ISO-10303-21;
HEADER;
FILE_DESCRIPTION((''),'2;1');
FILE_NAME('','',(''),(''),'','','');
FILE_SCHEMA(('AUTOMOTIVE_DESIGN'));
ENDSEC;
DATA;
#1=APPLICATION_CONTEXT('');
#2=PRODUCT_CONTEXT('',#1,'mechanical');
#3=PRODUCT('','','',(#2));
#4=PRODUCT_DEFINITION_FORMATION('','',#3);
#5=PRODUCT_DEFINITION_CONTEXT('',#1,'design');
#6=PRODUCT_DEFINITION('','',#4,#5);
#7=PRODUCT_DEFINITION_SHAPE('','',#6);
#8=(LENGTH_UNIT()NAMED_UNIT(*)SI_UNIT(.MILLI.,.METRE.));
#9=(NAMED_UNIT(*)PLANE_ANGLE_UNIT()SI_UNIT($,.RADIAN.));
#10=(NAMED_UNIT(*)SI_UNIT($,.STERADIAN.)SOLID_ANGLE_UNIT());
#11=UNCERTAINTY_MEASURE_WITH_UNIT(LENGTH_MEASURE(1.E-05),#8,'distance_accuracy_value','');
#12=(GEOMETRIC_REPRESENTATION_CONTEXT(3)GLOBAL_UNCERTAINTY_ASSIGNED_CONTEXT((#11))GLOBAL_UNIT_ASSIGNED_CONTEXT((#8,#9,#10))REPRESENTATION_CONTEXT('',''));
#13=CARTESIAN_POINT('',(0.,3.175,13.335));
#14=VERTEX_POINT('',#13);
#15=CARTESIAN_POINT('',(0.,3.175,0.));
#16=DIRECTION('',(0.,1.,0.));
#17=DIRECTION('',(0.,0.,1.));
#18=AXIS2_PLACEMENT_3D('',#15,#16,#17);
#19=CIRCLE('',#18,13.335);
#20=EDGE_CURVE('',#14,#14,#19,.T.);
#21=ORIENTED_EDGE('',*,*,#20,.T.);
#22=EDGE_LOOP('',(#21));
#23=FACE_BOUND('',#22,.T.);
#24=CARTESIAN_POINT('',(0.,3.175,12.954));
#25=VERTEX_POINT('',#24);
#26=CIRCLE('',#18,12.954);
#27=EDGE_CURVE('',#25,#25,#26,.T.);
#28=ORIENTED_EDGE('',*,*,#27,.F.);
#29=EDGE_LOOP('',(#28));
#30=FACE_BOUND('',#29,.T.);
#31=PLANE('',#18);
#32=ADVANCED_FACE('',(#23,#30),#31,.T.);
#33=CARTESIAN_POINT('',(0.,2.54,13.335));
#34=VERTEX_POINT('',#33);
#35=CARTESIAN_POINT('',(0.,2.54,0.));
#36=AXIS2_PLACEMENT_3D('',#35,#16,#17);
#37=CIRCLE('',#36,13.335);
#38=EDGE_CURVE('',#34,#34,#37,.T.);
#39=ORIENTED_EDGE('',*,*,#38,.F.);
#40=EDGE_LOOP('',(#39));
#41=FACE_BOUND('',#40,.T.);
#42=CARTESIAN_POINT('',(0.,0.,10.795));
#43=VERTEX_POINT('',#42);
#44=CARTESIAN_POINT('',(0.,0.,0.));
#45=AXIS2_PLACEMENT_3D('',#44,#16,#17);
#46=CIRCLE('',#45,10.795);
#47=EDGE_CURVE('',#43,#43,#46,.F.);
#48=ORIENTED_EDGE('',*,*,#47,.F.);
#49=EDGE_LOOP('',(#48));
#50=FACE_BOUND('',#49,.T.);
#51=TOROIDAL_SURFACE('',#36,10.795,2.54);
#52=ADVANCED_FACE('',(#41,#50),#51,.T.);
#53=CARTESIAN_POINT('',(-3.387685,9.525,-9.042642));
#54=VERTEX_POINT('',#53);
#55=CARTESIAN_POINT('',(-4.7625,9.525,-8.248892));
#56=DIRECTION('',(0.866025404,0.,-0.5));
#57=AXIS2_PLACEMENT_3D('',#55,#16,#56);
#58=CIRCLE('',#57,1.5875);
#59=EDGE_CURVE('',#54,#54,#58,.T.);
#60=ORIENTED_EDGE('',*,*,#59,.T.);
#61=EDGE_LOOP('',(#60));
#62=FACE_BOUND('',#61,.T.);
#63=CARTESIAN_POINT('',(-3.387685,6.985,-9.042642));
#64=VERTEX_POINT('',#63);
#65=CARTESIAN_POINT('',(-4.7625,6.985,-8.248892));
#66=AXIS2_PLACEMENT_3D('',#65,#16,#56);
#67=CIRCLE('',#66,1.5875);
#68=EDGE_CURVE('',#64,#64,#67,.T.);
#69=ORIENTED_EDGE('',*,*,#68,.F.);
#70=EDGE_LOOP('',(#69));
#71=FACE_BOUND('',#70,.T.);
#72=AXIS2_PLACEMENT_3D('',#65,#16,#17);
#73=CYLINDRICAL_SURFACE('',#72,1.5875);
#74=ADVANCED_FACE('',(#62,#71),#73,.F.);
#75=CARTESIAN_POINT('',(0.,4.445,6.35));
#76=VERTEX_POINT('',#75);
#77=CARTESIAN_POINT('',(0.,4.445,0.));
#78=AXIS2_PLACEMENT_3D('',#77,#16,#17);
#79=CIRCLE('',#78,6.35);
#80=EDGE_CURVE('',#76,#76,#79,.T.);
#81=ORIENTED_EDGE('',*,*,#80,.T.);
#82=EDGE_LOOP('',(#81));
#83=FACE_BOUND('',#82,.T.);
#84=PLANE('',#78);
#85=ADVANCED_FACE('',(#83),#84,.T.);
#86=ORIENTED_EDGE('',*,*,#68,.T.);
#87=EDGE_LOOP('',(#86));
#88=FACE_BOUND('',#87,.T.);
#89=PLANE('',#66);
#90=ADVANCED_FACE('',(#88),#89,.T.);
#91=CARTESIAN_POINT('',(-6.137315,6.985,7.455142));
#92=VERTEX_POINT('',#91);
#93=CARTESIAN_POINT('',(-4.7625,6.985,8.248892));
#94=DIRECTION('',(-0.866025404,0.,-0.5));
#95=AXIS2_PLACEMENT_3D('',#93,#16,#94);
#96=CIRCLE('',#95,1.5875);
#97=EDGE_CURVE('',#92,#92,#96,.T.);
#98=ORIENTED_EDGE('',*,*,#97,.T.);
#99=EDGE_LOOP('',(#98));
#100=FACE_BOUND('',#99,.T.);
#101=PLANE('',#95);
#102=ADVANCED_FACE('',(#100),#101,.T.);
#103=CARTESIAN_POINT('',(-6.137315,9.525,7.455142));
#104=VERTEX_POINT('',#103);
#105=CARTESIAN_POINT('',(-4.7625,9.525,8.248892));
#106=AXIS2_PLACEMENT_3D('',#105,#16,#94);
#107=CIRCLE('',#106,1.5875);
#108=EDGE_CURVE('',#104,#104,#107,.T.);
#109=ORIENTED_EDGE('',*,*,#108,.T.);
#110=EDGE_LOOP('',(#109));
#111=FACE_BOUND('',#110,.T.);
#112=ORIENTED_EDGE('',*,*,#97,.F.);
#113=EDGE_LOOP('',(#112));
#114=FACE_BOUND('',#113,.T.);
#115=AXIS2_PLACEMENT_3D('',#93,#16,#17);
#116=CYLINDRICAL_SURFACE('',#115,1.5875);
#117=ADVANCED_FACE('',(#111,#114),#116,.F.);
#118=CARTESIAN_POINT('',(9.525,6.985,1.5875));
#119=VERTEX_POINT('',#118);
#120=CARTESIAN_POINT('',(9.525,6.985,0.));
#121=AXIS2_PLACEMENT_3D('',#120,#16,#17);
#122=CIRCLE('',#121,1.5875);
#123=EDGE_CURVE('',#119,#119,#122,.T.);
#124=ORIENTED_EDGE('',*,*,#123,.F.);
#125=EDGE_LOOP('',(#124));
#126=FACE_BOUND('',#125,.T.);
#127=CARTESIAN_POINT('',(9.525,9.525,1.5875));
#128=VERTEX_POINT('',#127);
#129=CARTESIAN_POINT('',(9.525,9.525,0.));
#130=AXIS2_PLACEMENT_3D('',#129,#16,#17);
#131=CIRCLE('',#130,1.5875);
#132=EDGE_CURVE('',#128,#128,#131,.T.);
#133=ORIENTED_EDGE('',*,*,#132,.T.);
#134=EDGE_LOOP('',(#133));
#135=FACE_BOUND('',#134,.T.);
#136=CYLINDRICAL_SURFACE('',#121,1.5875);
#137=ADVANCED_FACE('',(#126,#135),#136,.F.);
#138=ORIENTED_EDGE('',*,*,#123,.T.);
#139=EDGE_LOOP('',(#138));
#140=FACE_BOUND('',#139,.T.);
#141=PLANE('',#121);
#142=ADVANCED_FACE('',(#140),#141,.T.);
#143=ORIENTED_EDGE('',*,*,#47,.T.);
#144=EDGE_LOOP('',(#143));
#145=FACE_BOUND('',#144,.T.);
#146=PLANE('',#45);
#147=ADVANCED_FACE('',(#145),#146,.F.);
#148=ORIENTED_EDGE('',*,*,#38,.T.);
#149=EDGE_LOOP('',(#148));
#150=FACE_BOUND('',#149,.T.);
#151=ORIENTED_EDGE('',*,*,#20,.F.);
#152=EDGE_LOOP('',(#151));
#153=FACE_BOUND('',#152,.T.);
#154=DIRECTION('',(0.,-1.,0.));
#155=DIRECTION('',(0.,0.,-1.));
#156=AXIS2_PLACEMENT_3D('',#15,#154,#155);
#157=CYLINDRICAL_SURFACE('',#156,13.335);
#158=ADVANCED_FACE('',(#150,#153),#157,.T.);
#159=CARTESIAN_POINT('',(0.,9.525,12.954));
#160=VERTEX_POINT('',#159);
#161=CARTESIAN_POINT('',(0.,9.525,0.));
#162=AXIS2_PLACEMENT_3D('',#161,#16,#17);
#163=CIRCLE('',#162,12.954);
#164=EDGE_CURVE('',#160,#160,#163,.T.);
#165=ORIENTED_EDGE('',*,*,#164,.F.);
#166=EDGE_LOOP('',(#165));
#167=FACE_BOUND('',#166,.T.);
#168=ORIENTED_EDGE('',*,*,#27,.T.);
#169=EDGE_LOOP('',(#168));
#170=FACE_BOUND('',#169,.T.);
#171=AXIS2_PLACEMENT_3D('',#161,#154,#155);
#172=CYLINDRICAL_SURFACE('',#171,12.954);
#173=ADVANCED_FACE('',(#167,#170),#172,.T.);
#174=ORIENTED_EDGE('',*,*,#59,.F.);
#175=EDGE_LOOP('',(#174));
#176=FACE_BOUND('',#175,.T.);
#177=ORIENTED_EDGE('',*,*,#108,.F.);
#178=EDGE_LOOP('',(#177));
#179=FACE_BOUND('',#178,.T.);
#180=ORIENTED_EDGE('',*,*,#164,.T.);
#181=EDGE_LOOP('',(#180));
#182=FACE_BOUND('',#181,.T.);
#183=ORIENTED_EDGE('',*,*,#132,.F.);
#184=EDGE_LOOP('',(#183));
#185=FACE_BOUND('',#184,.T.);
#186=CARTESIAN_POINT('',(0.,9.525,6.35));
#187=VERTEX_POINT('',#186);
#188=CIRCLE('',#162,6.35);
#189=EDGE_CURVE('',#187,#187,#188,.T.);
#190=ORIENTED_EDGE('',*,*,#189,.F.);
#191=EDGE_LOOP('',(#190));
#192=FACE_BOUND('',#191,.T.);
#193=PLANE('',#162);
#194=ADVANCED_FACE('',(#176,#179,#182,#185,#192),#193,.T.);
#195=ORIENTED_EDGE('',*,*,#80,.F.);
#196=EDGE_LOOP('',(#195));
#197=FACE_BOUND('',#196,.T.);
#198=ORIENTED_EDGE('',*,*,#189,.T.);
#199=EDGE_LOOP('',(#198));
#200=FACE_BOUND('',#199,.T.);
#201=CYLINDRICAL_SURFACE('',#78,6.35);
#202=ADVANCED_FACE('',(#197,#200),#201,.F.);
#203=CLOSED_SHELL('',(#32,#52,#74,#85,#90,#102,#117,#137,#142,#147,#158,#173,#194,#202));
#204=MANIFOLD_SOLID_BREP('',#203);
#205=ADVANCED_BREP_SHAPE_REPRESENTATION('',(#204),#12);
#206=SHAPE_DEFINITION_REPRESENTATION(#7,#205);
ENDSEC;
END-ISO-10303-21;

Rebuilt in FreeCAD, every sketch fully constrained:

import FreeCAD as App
import Part
import Sketcher
from FreeCAD import Vector
Q = App.Units.Quantity


def edges_at(feature, points):
    """Names of the edges that pass closest to the given points."""
    edges = feature.Shape.Edges
    near = lambda p: min(range(len(edges)), key=lambda i: edges[i].distToShape(Part.Vertex(*p))[0])
    return sorted({f"Edge{near(p) + 1}" for p in points})

doc = App.newDocument("Part")
params = doc.addObject("Spreadsheet::Sheet", "Params")
for row, (alias, value) in enumerate([
    ("sketch1_diameter", "1.05 in"),
    ("pad1_length", "0.125 in"),
    ("sketch2_diameter", "1.02 in"),
    ("pad2_length", "0.25 in"),
    ("sketch3_diameter", "0.5 in"),
    ("pocket1_length", "0.2 in"),
    ("sketch4_diameter", "0.125 in"),
    ("pocket2_length", "0.1 in"),
    ("fillet_radius", "0.1 in"),
], start=1):
    params.set(f"A{row}", alias)
    params.set(f"B{row}", "=" + value)
    params.setAlias(f"B{row}", alias)

body = doc.addObject("PartDesign::Body", "Body")

# Sketch on XZ plane
sketch1 = body.newObject("Sketcher::SketchObject", "Sketch")
sketch1.AttachmentSupport = (doc.getObject("XZ_Plane"), [""])
sketch1.MapMode = "FlatFace"
sketch1.addGeometry(Part.Circle(Vector(0, 0, 0), Vector(0, 0, 1), 13), False)
sketch1.addConstraint([
    Sketcher.Constraint("Coincident", 0, 3, -1, 1),
    Sketcher.Constraint("Diameter", 0, Q("1.05 in")),
])
sketch1.setExpression("Constraints[1]", "Params.sketch1_diameter")
pad1 = body.newObject("PartDesign::Pad", "Pad")
pad1.Profile = sketch1
pad1.setExpression("Length", "Params.pad1_length")
pad1.Reversed = True

# Sketch on XZ plane
sketch2 = body.newObject("Sketcher::SketchObject", "Sketch001")
sketch2.AttachmentSupport = (doc.getObject("XZ_Plane"), [""])
sketch2.MapMode = "FlatFace"
sketch2.AttachmentOffset = App.Placement(Vector(0, 0, -0.125 * 25.4), App.Rotation())
sketch2.addGeometry(Part.Circle(Vector(0, 0, 0), Vector(0, 0, 1), 13), False)
sketch2.addConstraint([
    Sketcher.Constraint("Coincident", 0, 3, -1, 1),
    Sketcher.Constraint("Diameter", 0, Q("1.02 in")),
])
sketch2.setExpression("Constraints[1]", "Params.sketch2_diameter")
pad2 = body.newObject("PartDesign::Pad", "Pad001")
pad2.Profile = sketch2
pad2.setExpression("Length", "Params.pad2_length")
pad2.Reversed = True

# Sketch on XZ plane
sketch3 = body.newObject("Sketcher::SketchObject", "Sketch002")
sketch3.AttachmentSupport = (doc.getObject("XZ_Plane"), [""])
sketch3.MapMode = "FlatFace"
sketch3.AttachmentOffset = App.Placement(Vector(0, 0, -0.375 * 25.4), App.Rotation())
sketch3.addGeometry(Part.Circle(Vector(0, 0, 0), Vector(0, 0, 1), 6), False)
sketch3.addConstraint([
    Sketcher.Constraint("Coincident", 0, 3, -1, 1),
    Sketcher.Constraint("Diameter", 0, Q("0.5 in")),
])
sketch3.setExpression("Constraints[1]", "Params.sketch3_diameter")
pocket1 = body.newObject("PartDesign::Pocket", "Pocket")
pocket1.Profile = sketch3
pocket1.setExpression("Length", "Params.pocket1_length")
pocket1.Reversed = True

# Sketch on XZ plane
sketch4 = body.newObject("Sketcher::SketchObject", "Sketch003")
sketch4.AttachmentSupport = (doc.getObject("XZ_Plane"), [""])
sketch4.MapMode = "FlatFace"
sketch4.AttachmentOffset = App.Placement(Vector(0, 0, -0.375 * 25.4), App.Rotation())
sketch4.addGeometry(Part.Circle(Vector(9.5, 0, 0), Vector(0, 0, 1), 1.6), False)
sketch4.addConstraint([
    Sketcher.Constraint("PointOnObject", 0, 3, -1),
    Sketcher.Constraint("Diameter", 0, Q("0.125 in")),
    Sketcher.Constraint("DistanceX", -1, 1, 0, 3, Q("0.375 in")),
])
sketch4.setExpression("Constraints[1]", "Params.sketch4_diameter")
pocket2 = body.newObject("PartDesign::Pocket", "Pocket001")
pocket2.Profile = sketch4
pocket2.setExpression("Length", "Params.pocket2_length")
pocket2.Reversed = True
doc.recompute()

polarpattern = body.newObject("PartDesign::PolarPattern", "PolarPattern")
polarpattern.Originals = [pocket2]
polarpattern.Axis = (doc.getObject("Y_Axis"), [""])
polarpattern.Angle = 360
polarpattern.Occurrences = 3
body.Tip = polarpattern
doc.recompute()

fillet = body.newObject("PartDesign::Fillet", "Fillet")
fillet.Base = (polarpattern, edges_at(polarpattern, [(0, 0, -13.335)]))
fillet.setExpression("Radius", "Params.fillet_radius")

doc.recompute()
